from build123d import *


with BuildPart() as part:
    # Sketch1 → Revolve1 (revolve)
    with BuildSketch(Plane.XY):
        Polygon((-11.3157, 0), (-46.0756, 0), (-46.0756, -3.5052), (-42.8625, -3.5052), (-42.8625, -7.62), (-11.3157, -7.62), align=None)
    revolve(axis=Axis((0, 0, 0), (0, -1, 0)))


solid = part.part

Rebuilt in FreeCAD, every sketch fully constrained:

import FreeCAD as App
import Part
import Sketcher
Q = App.Units.Quantity

doc = App.newDocument("Part")
body = doc.addObject("PartDesign::Body", "Body")

# Sketch on XY plane
sketch1 = body.newObject("Sketcher::SketchObject", "Sketch")
sketch1.AttachmentSupport = (doc.getObject("XY_Plane"), [""])
sketch1.MapMode = "FlatFace"
sketch1.addGeometry(Part.LineSegment(App.Vector(-11.3, 0, 0), App.Vector(-46.1, 0, 0)), False)
sketch1.addGeometry(Part.LineSegment(App.Vector(-46.1, 0, 0), App.Vector(-46.1, -3.5, 0)), False)
sketch1.addGeometry(Part.LineSegment(App.Vector(-46.1, -3.5, 0), App.Vector(-42.9, -3.5, 0)), False)
sketch1.addGeometry(Part.LineSegment(App.Vector(-42.9, -3.5, 0), App.Vector(-42.9, -7.6, 0)), False)
sketch1.addGeometry(Part.LineSegment(App.Vector(-42.9, -7.6, 0), App.Vector(-11.3, -7.6, 0)), False)
sketch1.addGeometry(Part.LineSegment(App.Vector(-11.3, -7.6, 0), App.Vector(-11.3, 0, 0)), False)
sketch1.addConstraint(Sketcher.Constraint("Coincident", 0, 2, 1, 1))
sketch1.addConstraint(Sketcher.Constraint("Coincident", 1, 2, 2, 1))
sketch1.addConstraint(Sketcher.Constraint("Coincident", 2, 2, 3, 1))
sketch1.addConstraint(Sketcher.Constraint("Coincident", 3, 2, 4, 1))
sketch1.addConstraint(Sketcher.Constraint("Coincident", 4, 2, 5, 1))
sketch1.addConstraint(Sketcher.Constraint("Coincident", 5, 2, 0, 1))
sketch1.addConstraint(Sketcher.Constraint("Horizontal", 0))
sketch1.addConstraint(Sketcher.Constraint("Vertical", 1))
sketch1.addConstraint(Sketcher.Constraint("Horizontal", 2))
sketch1.addConstraint(Sketcher.Constraint("Vertical", 3))
sketch1.addConstraint(Sketcher.Constraint("Horizontal", 4))
sketch1.addConstraint(Sketcher.Constraint("Vertical", 5))
sketch1.addConstraint(Sketcher.Constraint("PointOnObject", 0, 2, -1))
sketch1.addConstraint(Sketcher.Constraint("DistanceY", 5, 1, 5, 2, Q("0.3 in")))
sketch1.addConstraint(Sketcher.Constraint("DistanceX", 4, 1, 4, 2, Q("1.242 in")))
sketch1.addConstraint(Sketcher.Constraint("DistanceY", 1, 2, 1, 1, Q("0.138 in")))
sketch1.addConstraint(Sketcher.Constraint("DistanceX", 0, 2, 0, 1, Q("1.3685 in")))
sketch1.addConstraint(Sketcher.Constraint("DistanceX", 0, 2, -1, 1, Q("1.814 in")))
revolution = body.newObject("PartDesign::Revolution", "Revolution")
revolution.Profile = sketch1
revolution.ReferenceAxis = (sketch1, ["V_Axis"])
revolution.Angle = 360

doc.recompute()
